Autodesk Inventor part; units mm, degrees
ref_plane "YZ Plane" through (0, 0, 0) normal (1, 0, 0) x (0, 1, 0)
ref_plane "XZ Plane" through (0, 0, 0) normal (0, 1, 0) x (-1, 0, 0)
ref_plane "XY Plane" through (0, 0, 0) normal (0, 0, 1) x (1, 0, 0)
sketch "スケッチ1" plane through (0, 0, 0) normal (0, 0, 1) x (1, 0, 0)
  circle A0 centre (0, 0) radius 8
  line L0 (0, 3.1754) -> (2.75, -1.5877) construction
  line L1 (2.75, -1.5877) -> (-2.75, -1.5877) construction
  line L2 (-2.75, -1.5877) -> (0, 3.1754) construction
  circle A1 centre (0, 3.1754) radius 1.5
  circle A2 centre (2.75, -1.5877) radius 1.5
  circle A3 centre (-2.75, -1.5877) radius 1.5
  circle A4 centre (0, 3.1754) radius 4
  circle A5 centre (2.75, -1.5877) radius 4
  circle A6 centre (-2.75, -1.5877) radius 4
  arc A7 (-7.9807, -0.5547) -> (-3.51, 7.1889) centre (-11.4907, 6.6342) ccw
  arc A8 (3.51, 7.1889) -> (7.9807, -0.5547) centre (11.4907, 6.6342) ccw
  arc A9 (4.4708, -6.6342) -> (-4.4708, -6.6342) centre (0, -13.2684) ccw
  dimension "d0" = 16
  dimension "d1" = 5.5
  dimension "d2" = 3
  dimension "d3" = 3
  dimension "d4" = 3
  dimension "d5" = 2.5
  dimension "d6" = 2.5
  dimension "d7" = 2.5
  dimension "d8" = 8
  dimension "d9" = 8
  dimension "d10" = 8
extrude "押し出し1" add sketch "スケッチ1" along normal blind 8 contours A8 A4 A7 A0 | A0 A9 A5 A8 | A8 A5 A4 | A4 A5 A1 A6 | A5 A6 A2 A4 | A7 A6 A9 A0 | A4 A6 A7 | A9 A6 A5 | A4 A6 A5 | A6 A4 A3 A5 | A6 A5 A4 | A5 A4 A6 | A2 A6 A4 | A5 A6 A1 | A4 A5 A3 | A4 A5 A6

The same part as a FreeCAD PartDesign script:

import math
import FreeCAD as App
import Part
import Sketcher

V = App.Vector
Q = App.Units.Quantity

doc = App.newDocument("Part")
body = doc.addObject("PartDesign::Body", "Body")

# Sketch on XY plane
sketch1 = body.newObject("Sketcher::SketchObject", "Sketch")
sketch1.AttachmentSupport = (doc.getObject("XY_Plane"), [""])
sketch1.MapMode = "FlatFace"
sketch1.addGeometry([
    Part.ArcOfCircle(Part.Circle(V(0, 0, 0), V(0, 0, 1), 8), math.radians(63.97593), math.radians(116.02407)),  # 0
    Part.ArcOfCircle(Part.Circle(V(-11.4907, 6.6342, 0), V(0, 0, 1), 8.000024), math.radians(-63.97593), math.radians(3.975959)),  # 1
    Part.ArcOfCircle(Part.Circle(V(0, 0, 0), V(0, 0, 1), 8), math.radians(-176.024041), math.radians(-123.976105)),  # 2
    Part.ArcOfCircle(Part.Circle(V(0, -13.2684, 0), V(0, 0, 1), 8.000041), math.radians(56.023895), math.radians(123.976105)),  # 3
    Part.ArcOfCircle(Part.Circle(V(0, 0, 0), V(0, 0, 1), 8), math.radians(-56.023895), math.radians(-3.975959)),  # 4
    Part.ArcOfCircle(Part.Circle(V(11.4907, 6.6342, 0), V(0, 0, 1), 7.999954), math.radians(176.024041), math.radians(243.97593)),  # 5
    Part.Circle(V(0, 3.1754, 0), V(0, 0, 1), 1.5),  # 6
    Part.Circle(V(2.75, -1.5877, 0), V(0, 0, 1), 1.5),  # 7
    Part.Circle(V(-2.75, -1.5877, 0), V(0, 0, 1), 1.5),  # 8
], False)
sketch1.addConstraint([
    Sketcher.Constraint("Coincident", 0, 2, 1, 2),
    Sketcher.Constraint("Coincident", 1, 1, 2, 1),
    Sketcher.Constraint("Coincident", 2, 2, 3, 2),
    Sketcher.Constraint("Coincident", 3, 1, 4, 1),
    Sketcher.Constraint("Coincident", 4, 2, 5, 2),
    Sketcher.Constraint("Coincident", 5, 1, 0, 1),
    Sketcher.Constraint("Coincident", 0, 3, -1, 1),
    Sketcher.Constraint("Coincident", 2, 3, -1, 1),
    Sketcher.Constraint("Coincident", 4, 3, -1, 1),
    Sketcher.Constraint("Equal", 0, 1),
    Sketcher.Constraint("Equal", 1, 2),
    Sketcher.Constraint("Equal", 2, 3),
    Sketcher.Constraint("Equal", 3, 4),
    Sketcher.Constraint("Equal", 4, 5),
    Sketcher.Constraint("Equal", 6, 7),
    Sketcher.Constraint("Equal", 7, 8),
    Sketcher.Constraint("Symmetric", 1, 3, 5, 3, -2),
    Sketcher.Constraint("Symmetric", 7, 3, 8, 3, -2),
    Sketcher.Constraint("PointOnObject", 3, 3, -2),
    Sketcher.Constraint("PointOnObject", 6, 3, -2),
    Sketcher.Constraint("Diameter", 6, Q("3 mm")),
    Sketcher.Constraint("Radius", 0, Q("8 mm")),
    Sketcher.Constraint("DistanceX", 8, 3, 7, 3, Q("5.5 mm")),
    Sketcher.Constraint("DistanceX", 0, 2, -1, 1, Q("3.51 mm")),
    Sketcher.Constraint("DistanceX", 1, 1, 2, 2, Q("3.51 mm")),
    Sketcher.Constraint("DistanceY", 7, 3, 6, 3, Q("4.763 mm")),
    Sketcher.Constraint("DistanceY", 7, 3, 5, 3, Q("8.222 mm")),
    Sketcher.Constraint("DistanceX", 1, 3, -1, 1, Q("11.4907 mm")),
])
pad1 = body.newObject("PartDesign::Pad", "Pad")
pad1.Profile = sketch1
pad1.Length = 8

doc.recompute()
